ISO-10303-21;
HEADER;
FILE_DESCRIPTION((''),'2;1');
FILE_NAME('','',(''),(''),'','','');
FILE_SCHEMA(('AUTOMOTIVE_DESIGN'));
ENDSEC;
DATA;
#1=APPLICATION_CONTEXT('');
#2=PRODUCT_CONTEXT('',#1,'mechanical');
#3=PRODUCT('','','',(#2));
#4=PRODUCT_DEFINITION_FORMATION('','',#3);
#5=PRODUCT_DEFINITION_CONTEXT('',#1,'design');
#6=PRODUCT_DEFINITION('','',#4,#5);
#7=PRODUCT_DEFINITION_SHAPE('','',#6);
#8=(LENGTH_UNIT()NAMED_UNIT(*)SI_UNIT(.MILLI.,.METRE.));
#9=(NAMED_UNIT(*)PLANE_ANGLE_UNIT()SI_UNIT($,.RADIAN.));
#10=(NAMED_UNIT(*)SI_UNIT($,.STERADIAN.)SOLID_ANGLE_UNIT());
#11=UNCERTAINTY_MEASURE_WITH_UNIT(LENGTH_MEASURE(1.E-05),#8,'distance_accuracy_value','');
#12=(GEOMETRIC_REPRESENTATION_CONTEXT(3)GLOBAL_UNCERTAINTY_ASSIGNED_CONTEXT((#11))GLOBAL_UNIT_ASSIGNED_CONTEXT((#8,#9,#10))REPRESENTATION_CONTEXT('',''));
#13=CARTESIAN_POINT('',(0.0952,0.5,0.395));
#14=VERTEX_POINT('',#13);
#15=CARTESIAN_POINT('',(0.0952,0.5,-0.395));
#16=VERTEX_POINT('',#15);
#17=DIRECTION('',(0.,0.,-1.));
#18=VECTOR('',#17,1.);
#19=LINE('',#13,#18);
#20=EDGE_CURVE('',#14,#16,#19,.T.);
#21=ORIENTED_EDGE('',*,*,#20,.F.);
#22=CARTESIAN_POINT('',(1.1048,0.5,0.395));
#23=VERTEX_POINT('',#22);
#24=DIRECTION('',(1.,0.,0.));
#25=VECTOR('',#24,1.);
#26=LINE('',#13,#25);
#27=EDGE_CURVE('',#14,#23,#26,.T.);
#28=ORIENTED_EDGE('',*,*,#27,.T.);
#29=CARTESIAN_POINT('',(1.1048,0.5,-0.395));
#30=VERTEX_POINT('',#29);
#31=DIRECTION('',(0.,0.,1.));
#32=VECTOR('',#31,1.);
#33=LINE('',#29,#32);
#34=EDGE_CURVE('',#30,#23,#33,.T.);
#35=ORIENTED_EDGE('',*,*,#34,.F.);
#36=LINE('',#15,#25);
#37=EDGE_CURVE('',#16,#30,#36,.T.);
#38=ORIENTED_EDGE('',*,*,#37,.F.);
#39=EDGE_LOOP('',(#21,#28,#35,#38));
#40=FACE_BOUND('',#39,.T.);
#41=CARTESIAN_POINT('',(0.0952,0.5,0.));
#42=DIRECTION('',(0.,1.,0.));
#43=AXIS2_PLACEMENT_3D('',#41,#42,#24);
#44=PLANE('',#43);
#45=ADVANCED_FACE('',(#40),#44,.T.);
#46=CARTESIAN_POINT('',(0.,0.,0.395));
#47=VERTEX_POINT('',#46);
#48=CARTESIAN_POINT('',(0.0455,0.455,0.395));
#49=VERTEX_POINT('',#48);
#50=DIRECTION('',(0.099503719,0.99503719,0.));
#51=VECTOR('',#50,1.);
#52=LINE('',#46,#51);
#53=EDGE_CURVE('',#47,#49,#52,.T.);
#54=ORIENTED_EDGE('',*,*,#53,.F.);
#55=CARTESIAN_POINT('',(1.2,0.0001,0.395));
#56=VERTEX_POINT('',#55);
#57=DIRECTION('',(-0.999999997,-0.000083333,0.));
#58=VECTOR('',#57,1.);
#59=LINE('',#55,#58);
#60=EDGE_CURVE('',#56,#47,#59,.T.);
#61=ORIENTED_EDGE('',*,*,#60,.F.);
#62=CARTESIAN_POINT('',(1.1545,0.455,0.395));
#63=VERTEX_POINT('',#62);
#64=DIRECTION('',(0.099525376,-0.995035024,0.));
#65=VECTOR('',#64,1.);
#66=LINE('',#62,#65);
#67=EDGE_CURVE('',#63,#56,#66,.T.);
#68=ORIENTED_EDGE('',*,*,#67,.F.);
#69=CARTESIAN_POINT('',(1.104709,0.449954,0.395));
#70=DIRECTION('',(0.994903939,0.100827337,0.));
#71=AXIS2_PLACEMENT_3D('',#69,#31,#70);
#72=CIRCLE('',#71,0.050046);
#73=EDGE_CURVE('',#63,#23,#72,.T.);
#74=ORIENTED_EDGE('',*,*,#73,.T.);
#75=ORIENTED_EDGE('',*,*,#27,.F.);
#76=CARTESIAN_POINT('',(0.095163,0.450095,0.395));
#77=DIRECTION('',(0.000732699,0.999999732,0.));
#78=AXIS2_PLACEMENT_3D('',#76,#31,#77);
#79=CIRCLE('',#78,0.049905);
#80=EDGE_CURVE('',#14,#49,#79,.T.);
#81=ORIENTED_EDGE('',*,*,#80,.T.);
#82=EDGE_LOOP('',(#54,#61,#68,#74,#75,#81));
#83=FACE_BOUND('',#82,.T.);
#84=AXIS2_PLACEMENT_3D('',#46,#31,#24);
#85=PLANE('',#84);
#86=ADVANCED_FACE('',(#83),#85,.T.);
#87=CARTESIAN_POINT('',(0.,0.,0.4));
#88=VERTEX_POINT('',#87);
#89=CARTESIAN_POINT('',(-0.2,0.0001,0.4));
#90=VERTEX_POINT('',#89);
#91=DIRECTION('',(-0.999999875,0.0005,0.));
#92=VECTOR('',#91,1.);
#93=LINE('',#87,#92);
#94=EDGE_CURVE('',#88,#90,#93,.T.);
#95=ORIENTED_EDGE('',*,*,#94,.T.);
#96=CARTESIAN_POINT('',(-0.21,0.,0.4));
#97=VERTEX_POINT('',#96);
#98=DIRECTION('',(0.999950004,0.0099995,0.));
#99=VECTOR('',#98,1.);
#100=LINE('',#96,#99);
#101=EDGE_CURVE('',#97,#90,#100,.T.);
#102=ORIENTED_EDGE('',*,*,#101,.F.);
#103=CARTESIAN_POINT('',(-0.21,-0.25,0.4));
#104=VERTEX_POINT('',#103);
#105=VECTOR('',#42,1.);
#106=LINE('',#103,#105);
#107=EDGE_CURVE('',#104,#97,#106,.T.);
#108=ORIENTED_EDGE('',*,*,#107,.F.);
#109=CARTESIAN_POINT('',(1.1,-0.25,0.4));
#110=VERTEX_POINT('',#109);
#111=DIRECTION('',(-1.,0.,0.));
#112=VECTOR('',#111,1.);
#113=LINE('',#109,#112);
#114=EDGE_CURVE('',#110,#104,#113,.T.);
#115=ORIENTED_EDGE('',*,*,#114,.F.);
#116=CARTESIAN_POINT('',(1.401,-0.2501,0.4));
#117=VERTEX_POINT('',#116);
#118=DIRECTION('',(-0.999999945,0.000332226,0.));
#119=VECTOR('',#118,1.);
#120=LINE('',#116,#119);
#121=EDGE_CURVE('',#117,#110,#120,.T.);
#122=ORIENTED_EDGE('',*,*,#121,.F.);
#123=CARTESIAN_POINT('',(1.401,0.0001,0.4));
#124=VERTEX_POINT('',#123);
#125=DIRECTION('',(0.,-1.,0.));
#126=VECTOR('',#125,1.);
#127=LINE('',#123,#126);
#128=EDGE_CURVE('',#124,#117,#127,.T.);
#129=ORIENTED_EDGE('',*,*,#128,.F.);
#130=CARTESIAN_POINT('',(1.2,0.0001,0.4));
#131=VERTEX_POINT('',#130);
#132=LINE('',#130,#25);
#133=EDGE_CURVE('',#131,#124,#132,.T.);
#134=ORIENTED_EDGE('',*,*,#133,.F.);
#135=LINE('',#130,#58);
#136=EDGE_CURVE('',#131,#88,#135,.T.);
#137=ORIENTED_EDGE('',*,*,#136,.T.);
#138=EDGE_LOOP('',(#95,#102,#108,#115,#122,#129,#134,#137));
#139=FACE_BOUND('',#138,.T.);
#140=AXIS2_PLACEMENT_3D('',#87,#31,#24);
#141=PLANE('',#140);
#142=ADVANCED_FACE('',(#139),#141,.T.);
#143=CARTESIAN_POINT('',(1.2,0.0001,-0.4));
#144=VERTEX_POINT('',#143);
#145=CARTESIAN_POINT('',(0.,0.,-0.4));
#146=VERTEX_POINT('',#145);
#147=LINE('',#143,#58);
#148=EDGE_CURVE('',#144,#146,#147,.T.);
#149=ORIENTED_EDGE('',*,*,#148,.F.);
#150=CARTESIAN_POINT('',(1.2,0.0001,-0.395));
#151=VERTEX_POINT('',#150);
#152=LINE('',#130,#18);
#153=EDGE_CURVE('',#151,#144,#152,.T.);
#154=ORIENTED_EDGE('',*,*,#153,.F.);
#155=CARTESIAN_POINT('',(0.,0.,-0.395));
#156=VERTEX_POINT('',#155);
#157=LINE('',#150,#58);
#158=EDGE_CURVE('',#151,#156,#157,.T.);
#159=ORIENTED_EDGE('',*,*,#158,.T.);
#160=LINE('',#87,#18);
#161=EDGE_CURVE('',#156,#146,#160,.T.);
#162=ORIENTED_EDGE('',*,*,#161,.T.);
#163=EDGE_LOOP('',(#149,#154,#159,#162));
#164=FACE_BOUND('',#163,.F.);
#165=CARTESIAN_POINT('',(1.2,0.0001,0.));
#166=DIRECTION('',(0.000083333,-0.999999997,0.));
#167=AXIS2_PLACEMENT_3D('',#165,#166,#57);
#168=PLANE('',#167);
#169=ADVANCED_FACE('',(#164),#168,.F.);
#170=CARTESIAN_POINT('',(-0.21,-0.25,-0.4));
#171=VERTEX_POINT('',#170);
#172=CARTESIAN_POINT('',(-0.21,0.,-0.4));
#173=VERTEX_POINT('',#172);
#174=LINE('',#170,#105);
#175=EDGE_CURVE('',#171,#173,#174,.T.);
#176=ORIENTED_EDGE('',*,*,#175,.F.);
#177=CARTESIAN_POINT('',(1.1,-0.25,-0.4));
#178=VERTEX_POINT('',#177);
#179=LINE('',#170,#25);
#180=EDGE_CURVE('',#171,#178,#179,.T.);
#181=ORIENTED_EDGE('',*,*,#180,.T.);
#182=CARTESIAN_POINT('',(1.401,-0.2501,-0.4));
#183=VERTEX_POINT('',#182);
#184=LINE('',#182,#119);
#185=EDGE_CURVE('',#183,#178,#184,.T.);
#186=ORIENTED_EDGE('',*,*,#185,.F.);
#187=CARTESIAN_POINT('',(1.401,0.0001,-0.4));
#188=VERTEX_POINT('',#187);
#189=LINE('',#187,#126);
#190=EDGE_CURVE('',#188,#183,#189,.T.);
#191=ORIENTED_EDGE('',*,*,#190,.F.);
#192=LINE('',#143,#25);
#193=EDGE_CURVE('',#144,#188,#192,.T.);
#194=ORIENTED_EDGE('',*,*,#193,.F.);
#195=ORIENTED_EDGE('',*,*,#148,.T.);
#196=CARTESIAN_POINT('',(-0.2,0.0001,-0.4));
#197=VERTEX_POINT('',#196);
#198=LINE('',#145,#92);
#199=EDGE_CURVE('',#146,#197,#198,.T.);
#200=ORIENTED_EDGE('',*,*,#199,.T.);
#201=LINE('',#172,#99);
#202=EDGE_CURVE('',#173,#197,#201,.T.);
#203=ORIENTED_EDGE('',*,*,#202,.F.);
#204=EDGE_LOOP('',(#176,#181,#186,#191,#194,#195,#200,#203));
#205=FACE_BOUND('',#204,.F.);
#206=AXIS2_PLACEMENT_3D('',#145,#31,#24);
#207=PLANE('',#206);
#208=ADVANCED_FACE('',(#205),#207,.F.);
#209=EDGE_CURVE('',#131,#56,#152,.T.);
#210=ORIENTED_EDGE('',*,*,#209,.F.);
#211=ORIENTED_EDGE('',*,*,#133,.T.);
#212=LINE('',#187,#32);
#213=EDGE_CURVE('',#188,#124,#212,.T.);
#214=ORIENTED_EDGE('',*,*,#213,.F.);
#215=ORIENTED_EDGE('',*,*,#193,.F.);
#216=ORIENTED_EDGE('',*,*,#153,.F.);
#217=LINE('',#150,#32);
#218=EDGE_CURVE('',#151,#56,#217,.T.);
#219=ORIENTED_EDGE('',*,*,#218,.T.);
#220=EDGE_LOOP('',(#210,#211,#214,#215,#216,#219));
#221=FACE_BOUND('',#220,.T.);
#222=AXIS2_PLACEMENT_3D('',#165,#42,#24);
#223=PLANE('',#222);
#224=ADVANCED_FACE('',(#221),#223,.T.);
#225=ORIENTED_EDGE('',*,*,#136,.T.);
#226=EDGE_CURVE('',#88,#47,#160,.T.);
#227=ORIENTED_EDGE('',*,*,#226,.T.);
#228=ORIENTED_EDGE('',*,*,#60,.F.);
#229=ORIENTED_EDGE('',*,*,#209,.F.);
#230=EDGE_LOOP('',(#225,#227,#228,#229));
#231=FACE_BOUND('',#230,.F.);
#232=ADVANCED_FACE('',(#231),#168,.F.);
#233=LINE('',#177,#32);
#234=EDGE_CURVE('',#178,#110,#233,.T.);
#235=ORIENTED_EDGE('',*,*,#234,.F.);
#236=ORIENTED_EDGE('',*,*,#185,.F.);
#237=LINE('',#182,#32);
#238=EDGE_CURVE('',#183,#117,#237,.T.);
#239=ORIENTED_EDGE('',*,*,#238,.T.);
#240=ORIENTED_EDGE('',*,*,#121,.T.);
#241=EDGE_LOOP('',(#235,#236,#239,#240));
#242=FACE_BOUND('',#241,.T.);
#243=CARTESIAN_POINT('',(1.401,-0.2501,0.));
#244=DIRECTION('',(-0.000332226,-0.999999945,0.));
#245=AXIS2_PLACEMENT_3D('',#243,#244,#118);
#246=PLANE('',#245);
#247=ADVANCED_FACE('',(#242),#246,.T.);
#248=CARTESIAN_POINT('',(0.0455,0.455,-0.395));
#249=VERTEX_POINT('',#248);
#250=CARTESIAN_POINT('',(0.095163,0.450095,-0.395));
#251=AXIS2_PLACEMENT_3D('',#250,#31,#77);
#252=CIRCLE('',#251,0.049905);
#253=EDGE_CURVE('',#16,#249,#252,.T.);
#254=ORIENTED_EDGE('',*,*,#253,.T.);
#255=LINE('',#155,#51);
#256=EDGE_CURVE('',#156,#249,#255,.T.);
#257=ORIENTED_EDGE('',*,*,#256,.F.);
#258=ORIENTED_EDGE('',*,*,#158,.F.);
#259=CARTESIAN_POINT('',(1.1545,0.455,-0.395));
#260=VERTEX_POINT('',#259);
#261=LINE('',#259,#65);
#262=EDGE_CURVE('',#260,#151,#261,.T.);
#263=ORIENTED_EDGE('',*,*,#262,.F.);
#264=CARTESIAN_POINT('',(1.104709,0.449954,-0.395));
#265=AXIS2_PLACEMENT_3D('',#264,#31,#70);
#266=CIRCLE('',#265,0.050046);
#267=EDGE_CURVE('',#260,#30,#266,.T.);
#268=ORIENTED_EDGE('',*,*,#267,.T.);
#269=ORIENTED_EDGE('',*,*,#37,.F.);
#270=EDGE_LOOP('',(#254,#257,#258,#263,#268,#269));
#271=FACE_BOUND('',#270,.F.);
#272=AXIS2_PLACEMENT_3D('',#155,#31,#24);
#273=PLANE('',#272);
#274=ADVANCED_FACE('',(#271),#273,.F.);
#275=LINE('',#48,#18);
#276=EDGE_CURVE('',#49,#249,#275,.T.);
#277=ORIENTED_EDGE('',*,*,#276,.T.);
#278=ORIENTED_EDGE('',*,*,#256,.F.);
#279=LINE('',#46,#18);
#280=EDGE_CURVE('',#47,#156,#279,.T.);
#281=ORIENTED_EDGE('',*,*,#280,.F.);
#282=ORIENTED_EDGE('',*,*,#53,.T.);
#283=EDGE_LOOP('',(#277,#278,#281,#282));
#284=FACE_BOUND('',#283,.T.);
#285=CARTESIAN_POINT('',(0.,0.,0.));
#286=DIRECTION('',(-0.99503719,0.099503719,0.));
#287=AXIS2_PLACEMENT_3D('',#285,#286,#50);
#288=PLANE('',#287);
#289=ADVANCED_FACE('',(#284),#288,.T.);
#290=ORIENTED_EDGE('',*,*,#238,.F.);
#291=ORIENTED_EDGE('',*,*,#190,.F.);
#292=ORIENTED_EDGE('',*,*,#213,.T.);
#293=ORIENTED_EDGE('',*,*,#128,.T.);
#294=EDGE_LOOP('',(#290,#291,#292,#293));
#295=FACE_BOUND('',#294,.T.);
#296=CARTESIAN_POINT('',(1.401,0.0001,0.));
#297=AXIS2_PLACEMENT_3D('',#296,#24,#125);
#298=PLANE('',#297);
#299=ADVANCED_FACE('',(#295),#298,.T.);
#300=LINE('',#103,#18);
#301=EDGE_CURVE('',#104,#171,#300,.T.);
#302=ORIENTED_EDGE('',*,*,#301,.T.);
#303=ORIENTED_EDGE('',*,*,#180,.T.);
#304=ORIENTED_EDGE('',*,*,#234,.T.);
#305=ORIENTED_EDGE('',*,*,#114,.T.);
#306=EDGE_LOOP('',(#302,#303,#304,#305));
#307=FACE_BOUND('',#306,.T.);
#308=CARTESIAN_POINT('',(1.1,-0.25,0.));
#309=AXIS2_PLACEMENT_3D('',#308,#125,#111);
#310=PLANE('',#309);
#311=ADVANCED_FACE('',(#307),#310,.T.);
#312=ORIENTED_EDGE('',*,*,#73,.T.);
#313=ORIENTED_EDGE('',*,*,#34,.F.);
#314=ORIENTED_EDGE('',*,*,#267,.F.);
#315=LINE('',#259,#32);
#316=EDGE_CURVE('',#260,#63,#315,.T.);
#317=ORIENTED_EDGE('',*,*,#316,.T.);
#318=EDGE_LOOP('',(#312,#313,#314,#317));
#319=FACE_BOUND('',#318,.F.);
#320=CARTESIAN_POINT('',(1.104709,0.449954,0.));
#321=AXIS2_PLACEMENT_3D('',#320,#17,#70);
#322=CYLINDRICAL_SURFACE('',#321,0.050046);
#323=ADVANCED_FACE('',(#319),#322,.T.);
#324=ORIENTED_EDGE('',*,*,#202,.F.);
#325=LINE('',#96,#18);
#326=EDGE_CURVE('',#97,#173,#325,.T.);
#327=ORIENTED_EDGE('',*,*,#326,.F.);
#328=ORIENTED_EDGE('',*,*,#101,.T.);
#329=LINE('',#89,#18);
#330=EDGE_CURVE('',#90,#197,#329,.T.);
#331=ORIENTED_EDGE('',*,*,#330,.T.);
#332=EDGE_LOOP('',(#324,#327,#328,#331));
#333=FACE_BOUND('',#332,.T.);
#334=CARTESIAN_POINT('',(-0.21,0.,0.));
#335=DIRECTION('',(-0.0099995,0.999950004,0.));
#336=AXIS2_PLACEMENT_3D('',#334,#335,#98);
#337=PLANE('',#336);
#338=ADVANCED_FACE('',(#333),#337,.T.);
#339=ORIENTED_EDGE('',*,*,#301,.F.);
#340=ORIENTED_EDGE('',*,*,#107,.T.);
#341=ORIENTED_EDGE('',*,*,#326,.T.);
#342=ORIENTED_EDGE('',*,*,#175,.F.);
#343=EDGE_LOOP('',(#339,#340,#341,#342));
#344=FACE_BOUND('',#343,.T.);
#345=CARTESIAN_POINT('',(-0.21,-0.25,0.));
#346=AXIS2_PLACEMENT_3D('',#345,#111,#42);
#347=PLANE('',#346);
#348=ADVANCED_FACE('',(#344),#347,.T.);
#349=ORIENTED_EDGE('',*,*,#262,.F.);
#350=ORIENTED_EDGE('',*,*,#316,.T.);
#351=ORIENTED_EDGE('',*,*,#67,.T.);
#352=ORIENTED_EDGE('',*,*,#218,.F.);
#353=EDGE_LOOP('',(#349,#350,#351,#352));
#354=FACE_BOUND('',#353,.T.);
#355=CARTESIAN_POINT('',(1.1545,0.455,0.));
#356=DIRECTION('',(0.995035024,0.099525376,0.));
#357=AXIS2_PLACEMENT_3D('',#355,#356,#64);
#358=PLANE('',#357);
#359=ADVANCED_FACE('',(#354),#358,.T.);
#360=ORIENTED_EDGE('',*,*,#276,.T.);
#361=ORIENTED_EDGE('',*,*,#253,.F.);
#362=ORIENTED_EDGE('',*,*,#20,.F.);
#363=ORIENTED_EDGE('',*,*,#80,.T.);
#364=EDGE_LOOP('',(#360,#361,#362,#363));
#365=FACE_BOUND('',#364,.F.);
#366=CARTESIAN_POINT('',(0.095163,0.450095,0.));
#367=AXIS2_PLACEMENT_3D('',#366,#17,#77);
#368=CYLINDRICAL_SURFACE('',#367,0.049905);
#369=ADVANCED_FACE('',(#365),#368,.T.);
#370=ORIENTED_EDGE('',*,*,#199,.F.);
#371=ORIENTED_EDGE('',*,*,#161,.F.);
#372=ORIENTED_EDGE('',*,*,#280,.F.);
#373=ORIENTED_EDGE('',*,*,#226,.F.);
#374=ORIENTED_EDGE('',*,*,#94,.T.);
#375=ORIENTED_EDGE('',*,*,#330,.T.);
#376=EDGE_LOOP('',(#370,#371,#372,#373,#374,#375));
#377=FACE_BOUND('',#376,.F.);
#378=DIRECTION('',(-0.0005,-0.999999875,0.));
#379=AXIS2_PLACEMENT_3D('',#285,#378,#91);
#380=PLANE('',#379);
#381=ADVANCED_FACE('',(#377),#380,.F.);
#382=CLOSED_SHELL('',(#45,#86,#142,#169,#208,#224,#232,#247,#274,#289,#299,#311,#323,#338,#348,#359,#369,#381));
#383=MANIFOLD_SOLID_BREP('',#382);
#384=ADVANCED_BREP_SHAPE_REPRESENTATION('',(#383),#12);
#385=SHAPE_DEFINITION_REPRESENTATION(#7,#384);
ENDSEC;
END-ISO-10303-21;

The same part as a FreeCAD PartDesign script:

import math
import FreeCAD as App
import Part
import Sketcher
Q = App.Units.Quantity


def add_polygon(sketch, points):
    """Adds a closed chain of lines whose ends are joined by coincident constraints."""
    first, n = sketch.GeometryCount, len(points)
    for a, b in zip(points, points[1:] + points[:1]):
        sketch.addGeometry(Part.LineSegment(App.Vector(*a, 0), App.Vector(*b, 0)), False)
    for i in range(n):
        sketch.addConstraint(Sketcher.Constraint("Coincident", first + i, 2, first + (i + 1) % n, 1))

doc = App.newDocument("Part")
params = doc.addObject("Spreadsheet::Sheet", "Params")
for row, (alias, value) in enumerate([
    ("sketch1_width", "1.2 mm"),
    ("sketch1_width2", "0.2 mm"),
    ("sketch1_width3", "1.31 mm"),
    ("sketch1_width4", "0.01 mm"),
    ("sketch1_height", "0.25 mm"),
    ("pad1_length", "0.8 mm"),
    ("sketch2_radius", "0.05 mm"),
    ("sketch2_width", "1.2 mm"),
    ("pad2_length", "0.79 mm"),
], start=1):
    params.set(f"A{row}", alias)
    params.set(f"B{row}", "=" + value)
    params.setAlias(f"B{row}", alias)

body = doc.addObject("PartDesign::Body", "Body")

sketch1 = doc.addObject("Sketcher::SketchObject", "Sketch")
body.addObject(sketch1)
sketch1.AttachmentSupport = (doc.XY_Plane, [""])
sketch1.MapMode = "FlatFace"
add_polygon(sketch1, [(-0.21, -0.25), (1.1, -0.25), (1.401, -0.2501), (1.401, 0.0001), (1.2, 0.0001), (0, 0), (-0.2, 0.0001), (-0.21, 0)])
sketch1.addConstraint([
    Sketcher.Constraint("Horizontal", 0),
    Sketcher.Constraint("Horizontal", 1),
    Sketcher.Constraint("Vertical", 2),
    Sketcher.Constraint("Horizontal", 3),
    Sketcher.Constraint("Horizontal", 4),
    Sketcher.Constraint("Horizontal", 5),
    Sketcher.Constraint("Horizontal", 6),
    Sketcher.Constraint("Vertical", 7),
    Sketcher.Constraint("Coincident", 4, 2, -1, 1),
    Sketcher.Constraint("DistanceX", 4, 2, 4, 1, Q("1.2 mm")),
    Sketcher.Constraint("DistanceX", 5, 2, 5, 1, Q("0.2 mm")),
    Sketcher.Constraint("DistanceX", 0, 1, 0, 2, Q("1.31 mm")),
    Sketcher.Constraint("DistanceX", 6, 2, 6, 1, Q("0.01 mm")),
    Sketcher.Constraint("DistanceY", 7, 2, 7, 1, Q("0.25 mm")),
    Sketcher.Constraint("DistanceX", 1, 1, 1, 2, Q("0.301 mm")),
])
sketch1.setExpression("Constraints[17]", "Params.sketch1_width")
sketch1.setExpression("Constraints[18]", "Params.sketch1_width2")
sketch1.setExpression("Constraints[19]", "Params.sketch1_width3")
sketch1.setExpression("Constraints[20]", "Params.sketch1_width4")
sketch1.setExpression("Constraints[21]", "Params.sketch1_height")
pad1 = doc.addObject("PartDesign::Pad", "Pad")
body.addObject(pad1)
pad1.Profile = sketch1
pad1.setExpression("Length", "Params.pad1_length")
pad1.Midplane = True

sketch2 = doc.addObject("Sketcher::SketchObject", "Sketch001")
body.addObject(sketch2)
sketch2.AttachmentSupport = (doc.XY_Plane, [""])
sketch2.MapMode = "FlatFace"
sketch2.addGeometry([
    Part.LineSegment(App.Vector(0, 0, 0), App.Vector(1.2, 0.0001, 0)),
    Part.LineSegment(App.Vector(1.2, 0.0001, 0), App.Vector(1.1545, 0.455, 0)),
    Part.ArcOfCircle(Part.Circle(App.Vector(1.1048, 0.45, 0), App.Vector(0, 0, 1), 0.049951), math.radians(5.744834), math.radians(90)),
    Part.LineSegment(App.Vector(1.1048, 0.5, 0), App.Vector(0.0952, 0.5, 0)),
    Part.ArcOfCircle(Part.Circle(App.Vector(0.0952, 0.45, 0), App.Vector(0, 0, 1), 0.05), math.radians(90), math.radians(174.255166)),
    Part.LineSegment(App.Vector(0.0455, 0.455, 0), App.Vector(0, 0, 0)),
], False)
sketch2.addConstraint([
    Sketcher.Constraint("Coincident", 0, 2, 1, 1),
    Sketcher.Constraint("Coincident", 1, 2, 2, 1),
    Sketcher.Constraint("Tangent", 2, 2, 3, 1),
    Sketcher.Constraint("Tangent", 3, 2, 4, 1),
    Sketcher.Constraint("Coincident", 4, 2, 5, 1),
    Sketcher.Constraint("Coincident", 5, 2, 0, 1),
    Sketcher.Constraint("Horizontal", 0),
    Sketcher.Constraint("Horizontal", 3),
    Sketcher.Constraint("Coincident", 5, 2, -1, 1),
    Sketcher.Constraint("Equal", 2, 4),
    Sketcher.Constraint("Horizontal", 1, 2, 4, 2),
    Sketcher.Constraint("Equal", 1, 5),
    Sketcher.Constraint("Radius", 2, Q("0.05 mm")),
    Sketcher.Constraint("DistanceX", 0, 1, 0, 2, Q("1.2 mm")),
    Sketcher.Constraint("DistanceY", -1, 1, 2, 2, Q("0.5 mm")),
    Sketcher.Constraint("Angle", 5, Q("-95.7106 deg")),
    Sketcher.Constraint("DistanceY", -1, 1, 1, 2, Q("0.455 mm")),
])
sketch2.setExpression("Constraints[12]", "Params.sketch2_radius")
sketch2.setExpression("Constraints[13]", "Params.sketch2_width")
pad2 = doc.addObject("PartDesign::Pad", "Pad001")
body.addObject(pad2)
pad2.Profile = sketch2
pad2.setExpression("Length", "Params.pad2_length")
pad2.Midplane = True

doc.recompute()
